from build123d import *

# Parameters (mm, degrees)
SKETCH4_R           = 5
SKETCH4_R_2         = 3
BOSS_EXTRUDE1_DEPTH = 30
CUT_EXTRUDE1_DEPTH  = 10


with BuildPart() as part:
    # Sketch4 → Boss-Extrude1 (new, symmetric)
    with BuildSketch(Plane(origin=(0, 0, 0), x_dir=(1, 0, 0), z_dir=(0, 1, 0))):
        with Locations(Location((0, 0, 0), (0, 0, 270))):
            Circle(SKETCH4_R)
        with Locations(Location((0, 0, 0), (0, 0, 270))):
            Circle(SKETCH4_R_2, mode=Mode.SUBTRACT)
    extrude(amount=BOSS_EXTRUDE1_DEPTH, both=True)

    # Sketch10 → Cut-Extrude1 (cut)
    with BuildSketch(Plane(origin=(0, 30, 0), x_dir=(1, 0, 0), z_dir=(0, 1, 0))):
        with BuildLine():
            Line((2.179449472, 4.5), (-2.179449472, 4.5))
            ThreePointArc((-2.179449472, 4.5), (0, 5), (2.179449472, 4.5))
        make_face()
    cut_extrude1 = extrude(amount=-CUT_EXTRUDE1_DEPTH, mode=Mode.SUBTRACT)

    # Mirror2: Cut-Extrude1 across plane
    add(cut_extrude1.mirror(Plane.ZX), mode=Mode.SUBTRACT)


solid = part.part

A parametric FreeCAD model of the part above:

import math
import FreeCAD as App
import Part
import Sketcher
from FreeCAD import Vector
Q = App.Units.Quantity

doc = App.newDocument("Part")
body = doc.addObject("PartDesign::Body", "Body")

sketch1 = body.newObject("Sketcher::SketchObject", "Sketch")
sketch1.AttachmentSupport = (doc.getObject("XZ_Plane"), [""])
sketch1.MapMode = "FlatFace"
sketch1.addGeometry(Part.Circle(Vector(0, 0, 0), Vector(0, 0, 1), 5), False)
sketch1.addGeometry(Part.Circle(Vector(0, 0, 0), Vector(0, 0, 1), 3), False)
sketch1.addConstraint(Sketcher.Constraint("Coincident", 0, 3, -1, 1))
sketch1.addConstraint(Sketcher.Constraint("Coincident", 1, 3, -1, 1))
sketch1.addConstraint(Sketcher.Constraint("Diameter", 0, Q("10 mm")))
sketch1.addConstraint(Sketcher.Constraint("Diameter", 1, Q("6 mm")))
pad1 = body.newObject("PartDesign::Pad", "Pad")
pad1.Profile = sketch1
pad1.Length = 60
pad1.Midplane = True

sketch2 = body.newObject("Sketcher::SketchObject", "Sketch001")
sketch2.AttachmentSupport = (doc.getObject("XZ_Plane"), [""])
sketch2.MapMode = "FlatFace"
sketch2.AttachmentOffset = App.Placement(Vector(0, 0, -30), App.Rotation())
sketch2.addGeometry(Part.LineSegment(Vector(-2.179449, -4.5, 0), Vector(2.179449, -4.5, 0)), False)
sketch2.addGeometry(Part.ArcOfCircle(Part.Circle(Vector(0, 0, 0), Vector(0, 0, 1), 5), math.radians(-115.841933), math.radians(-64.158067)), False)
sketch2.addConstraint(Sketcher.Constraint("Coincident", 0, 1, 1, 1))
sketch2.addConstraint(Sketcher.Constraint("Coincident", 1, 2, 0, 2))
sketch2.addConstraint(Sketcher.Constraint("Horizontal", 0))
sketch2.addConstraint(Sketcher.Constraint("Coincident", 1, 3, -1, 1))
sketch2.addConstraint(Sketcher.Constraint("Radius", 1, Q("5 mm")))
sketch2.addConstraint(Sketcher.Constraint("DistanceY", 0, 1, -1, 1, Q("4.5 mm")))
pocket1 = body.newObject("PartDesign::Pocket", "Pocket")
pocket1.Profile = sketch2
pocket1.Length = 10
pocket1.Reversed = True
doc.recompute()

mirrored = body.newObject("PartDesign::Mirrored", "Mirrored")
mirrored.Originals = [pocket1]
mirrored.MirrorPlane = (doc.getObject("XZ_Plane"), [""])
body.Tip = mirrored

doc.recompute()
